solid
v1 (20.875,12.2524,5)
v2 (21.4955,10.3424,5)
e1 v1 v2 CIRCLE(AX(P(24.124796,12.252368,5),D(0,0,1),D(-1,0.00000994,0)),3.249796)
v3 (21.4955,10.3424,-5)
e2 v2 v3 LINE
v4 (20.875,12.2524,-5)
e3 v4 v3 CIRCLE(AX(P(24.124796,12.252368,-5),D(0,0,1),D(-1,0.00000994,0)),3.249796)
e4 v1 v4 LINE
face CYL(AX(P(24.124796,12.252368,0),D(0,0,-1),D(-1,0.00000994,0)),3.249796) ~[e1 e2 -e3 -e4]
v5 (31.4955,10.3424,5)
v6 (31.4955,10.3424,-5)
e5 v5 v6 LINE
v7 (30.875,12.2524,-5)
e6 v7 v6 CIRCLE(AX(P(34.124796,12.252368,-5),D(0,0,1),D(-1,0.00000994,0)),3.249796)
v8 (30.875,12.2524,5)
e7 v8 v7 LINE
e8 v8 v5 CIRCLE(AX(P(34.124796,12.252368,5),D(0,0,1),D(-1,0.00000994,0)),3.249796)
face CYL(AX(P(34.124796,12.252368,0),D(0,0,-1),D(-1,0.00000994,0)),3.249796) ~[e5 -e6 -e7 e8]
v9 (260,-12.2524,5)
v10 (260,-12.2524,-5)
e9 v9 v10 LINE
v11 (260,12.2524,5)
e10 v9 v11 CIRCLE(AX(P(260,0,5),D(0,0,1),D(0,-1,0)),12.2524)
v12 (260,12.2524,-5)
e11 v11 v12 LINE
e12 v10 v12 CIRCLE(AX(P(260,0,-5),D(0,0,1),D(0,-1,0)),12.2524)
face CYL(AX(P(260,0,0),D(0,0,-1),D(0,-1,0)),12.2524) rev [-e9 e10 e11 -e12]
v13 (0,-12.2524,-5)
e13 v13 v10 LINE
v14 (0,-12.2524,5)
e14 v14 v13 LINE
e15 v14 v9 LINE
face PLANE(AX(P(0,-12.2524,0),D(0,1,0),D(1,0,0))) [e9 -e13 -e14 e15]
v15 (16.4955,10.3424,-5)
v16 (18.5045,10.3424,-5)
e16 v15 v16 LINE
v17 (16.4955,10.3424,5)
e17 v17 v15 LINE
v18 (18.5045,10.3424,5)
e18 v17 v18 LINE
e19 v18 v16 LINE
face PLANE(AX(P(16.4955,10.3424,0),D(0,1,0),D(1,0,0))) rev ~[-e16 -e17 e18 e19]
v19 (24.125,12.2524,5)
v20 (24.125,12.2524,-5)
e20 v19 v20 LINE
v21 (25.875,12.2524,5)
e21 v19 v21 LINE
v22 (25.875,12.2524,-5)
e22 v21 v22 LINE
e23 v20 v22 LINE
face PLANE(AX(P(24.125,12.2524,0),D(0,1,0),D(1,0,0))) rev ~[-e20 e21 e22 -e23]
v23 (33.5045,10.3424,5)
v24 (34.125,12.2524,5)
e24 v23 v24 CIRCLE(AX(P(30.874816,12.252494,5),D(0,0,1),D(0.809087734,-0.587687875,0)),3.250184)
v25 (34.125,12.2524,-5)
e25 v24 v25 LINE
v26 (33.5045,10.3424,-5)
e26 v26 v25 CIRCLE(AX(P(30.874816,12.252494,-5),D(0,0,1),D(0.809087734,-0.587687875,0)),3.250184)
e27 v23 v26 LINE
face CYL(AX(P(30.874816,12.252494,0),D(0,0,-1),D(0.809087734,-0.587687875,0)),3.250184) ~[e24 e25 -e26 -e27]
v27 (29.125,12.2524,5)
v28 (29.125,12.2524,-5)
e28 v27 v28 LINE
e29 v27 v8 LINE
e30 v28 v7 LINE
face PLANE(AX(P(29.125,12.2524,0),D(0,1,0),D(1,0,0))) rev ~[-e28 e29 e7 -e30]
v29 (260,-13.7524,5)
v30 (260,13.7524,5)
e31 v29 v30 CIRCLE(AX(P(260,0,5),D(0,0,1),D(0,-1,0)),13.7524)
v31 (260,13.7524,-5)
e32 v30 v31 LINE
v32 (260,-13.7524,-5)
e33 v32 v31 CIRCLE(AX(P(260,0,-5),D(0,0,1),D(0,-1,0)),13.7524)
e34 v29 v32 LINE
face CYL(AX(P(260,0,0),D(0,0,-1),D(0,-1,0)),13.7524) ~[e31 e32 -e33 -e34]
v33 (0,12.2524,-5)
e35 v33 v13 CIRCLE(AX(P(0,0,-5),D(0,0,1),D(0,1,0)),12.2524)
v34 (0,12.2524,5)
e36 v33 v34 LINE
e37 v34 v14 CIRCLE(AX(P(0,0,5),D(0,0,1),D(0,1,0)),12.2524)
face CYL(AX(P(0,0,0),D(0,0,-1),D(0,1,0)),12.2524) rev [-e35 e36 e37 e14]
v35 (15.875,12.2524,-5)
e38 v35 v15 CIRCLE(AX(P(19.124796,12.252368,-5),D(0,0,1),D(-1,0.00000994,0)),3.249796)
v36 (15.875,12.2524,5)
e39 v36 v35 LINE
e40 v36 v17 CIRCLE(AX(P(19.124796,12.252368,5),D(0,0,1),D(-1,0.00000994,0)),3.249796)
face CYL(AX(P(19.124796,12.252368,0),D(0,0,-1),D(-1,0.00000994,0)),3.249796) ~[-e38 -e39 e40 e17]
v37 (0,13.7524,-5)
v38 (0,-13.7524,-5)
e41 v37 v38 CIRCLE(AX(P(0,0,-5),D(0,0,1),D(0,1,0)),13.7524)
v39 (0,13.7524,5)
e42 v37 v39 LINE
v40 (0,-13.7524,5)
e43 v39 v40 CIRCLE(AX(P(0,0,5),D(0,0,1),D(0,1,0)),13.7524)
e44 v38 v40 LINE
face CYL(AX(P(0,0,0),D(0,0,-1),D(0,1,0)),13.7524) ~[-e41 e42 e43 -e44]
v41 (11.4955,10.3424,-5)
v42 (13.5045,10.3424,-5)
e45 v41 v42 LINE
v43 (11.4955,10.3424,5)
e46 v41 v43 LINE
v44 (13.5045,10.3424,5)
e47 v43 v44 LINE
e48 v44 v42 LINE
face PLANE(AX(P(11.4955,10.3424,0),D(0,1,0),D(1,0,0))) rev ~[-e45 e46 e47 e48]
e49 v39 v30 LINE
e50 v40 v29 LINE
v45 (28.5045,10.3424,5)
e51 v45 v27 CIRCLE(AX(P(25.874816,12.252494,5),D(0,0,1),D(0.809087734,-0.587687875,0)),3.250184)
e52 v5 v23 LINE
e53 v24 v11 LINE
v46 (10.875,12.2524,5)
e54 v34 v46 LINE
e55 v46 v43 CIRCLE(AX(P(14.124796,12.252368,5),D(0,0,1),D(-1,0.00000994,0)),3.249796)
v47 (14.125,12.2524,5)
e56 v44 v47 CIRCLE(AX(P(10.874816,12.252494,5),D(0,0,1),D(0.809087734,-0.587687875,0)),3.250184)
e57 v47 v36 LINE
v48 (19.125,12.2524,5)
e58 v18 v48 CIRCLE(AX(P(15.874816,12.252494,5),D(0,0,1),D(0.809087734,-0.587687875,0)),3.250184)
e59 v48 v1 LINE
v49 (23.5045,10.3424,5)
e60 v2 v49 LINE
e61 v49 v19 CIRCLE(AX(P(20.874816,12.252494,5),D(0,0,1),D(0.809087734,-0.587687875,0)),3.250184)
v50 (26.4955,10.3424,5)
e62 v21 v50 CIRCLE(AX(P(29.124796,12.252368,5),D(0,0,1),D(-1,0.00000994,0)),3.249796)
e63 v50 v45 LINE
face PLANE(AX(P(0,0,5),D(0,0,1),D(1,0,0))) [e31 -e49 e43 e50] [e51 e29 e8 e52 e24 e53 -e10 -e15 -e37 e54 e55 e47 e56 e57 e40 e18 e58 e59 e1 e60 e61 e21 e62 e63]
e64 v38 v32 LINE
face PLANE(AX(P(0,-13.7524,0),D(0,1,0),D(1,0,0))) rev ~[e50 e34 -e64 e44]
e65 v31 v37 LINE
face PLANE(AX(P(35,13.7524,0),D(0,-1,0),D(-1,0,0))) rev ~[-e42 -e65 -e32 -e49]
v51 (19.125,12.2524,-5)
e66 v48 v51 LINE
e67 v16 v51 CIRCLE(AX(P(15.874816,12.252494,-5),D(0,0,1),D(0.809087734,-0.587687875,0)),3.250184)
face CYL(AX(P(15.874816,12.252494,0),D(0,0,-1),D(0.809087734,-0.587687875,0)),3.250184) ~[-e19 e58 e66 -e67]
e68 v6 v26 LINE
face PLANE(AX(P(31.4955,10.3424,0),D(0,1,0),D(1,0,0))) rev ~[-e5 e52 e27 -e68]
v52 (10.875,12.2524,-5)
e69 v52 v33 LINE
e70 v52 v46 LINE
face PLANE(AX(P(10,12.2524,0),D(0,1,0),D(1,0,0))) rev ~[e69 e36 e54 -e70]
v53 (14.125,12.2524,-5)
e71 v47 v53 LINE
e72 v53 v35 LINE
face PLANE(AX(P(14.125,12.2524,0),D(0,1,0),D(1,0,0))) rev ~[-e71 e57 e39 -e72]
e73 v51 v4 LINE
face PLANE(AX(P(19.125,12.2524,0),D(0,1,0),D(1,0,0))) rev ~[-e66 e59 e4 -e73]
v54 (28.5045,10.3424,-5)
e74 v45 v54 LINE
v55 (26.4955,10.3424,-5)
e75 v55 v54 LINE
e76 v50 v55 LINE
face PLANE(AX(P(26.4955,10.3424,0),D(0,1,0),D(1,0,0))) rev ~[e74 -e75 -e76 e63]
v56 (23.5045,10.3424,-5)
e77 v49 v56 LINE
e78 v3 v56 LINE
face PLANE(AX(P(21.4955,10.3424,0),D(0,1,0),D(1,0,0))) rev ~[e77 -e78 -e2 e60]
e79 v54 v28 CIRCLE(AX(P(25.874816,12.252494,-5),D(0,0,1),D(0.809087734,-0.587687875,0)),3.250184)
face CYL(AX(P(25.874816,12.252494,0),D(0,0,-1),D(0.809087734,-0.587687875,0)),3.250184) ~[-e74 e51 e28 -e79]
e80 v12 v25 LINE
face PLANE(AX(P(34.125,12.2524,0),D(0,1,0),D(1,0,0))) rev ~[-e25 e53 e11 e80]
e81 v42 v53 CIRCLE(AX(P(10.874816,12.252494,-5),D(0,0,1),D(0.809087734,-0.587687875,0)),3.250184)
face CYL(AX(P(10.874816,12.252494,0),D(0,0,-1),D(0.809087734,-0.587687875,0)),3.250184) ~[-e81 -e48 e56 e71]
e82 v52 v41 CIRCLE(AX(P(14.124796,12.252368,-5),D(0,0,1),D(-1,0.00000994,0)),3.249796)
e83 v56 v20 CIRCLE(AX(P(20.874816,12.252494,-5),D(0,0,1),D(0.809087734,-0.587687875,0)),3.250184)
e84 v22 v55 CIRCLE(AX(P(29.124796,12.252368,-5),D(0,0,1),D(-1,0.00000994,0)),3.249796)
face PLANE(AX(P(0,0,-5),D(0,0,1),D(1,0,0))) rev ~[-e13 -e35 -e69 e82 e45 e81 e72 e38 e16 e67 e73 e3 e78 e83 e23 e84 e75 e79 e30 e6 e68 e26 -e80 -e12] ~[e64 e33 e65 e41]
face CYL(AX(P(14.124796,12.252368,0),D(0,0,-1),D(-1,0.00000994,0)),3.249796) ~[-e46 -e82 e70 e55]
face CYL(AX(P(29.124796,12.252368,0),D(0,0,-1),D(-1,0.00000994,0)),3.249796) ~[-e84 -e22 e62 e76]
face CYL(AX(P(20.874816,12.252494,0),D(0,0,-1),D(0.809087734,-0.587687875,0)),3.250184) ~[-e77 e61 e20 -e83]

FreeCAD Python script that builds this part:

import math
import FreeCAD as App
import Part
import Sketcher
from FreeCAD import Vector
Q = App.Units.Quantity

doc = App.newDocument("Part")
body = doc.addObject("PartDesign::Body", "Body")

sketch1 = body.newObject("Sketcher::SketchObject", "Sketch")
sketch1.AttachmentSupport = (doc.getObject("XY_Plane"), [""])
sketch1.MapMode = "FlatFace"
sketch1.addGeometry([
    Part.LineSegment(Vector(10, 13.7524, 0), Vector(10, 12.2524, 0)),
    Part.LineSegment(Vector(10, 12.2524, 0), Vector(10.875, 12.2524, 0)),
    Part.ArcOfCircle(Part.Circle(Vector(14.125, 12.2524, 0), Vector(0, 0, 1), 3.25), math.radians(180), math.radians(215.993673)),
    Part.LineSegment(Vector(11.4955, 10.3424, 0), Vector(13.5045, 10.3424, 0)),
    Part.ArcOfCircle(Part.Circle(Vector(10.875, 12.2524, 0), Vector(0, 0, 1), 3.24998), math.radians(-35.993673), math.radians(0)),
    Part.LineSegment(Vector(14.125, 12.2524, 0), Vector(15.875, 12.2524, 0)),
    Part.ArcOfCircle(Part.Circle(Vector(19.125, 12.2524, 0), Vector(0, 0, 1), 3.25), math.radians(180), math.radians(215.993673)),
    Part.LineSegment(Vector(16.4955, 10.3424, 0), Vector(18.5045, 10.3424, 0)),
    Part.ArcOfCircle(Part.Circle(Vector(15.875, 12.2524, 0), Vector(0, 0, 1), 3.24998), math.radians(-35.993673), math.radians(0)),
    Part.LineSegment(Vector(19.125, 12.2524, 0), Vector(20.875, 12.2524, 0)),
    Part.ArcOfCircle(Part.Circle(Vector(24.125, 12.2524, 0), Vector(0, 0, 1), 3.25), math.radians(180), math.radians(215.993673)),
    Part.LineSegment(Vector(21.4955, 10.3424, 0), Vector(23.5045, 10.3424, 0)),
    Part.ArcOfCircle(Part.Circle(Vector(20.875, 12.2524, 0), Vector(0, 0, 1), 3.24998), math.radians(-35.993673), math.radians(0)),
    Part.LineSegment(Vector(24.125, 12.2524, 0), Vector(25.875, 12.2524, 0)),
    Part.ArcOfCircle(Part.Circle(Vector(29.125, 12.2524, 0), Vector(0, 0, 1), 3.25), math.radians(180), math.radians(215.993673)),
    Part.LineSegment(Vector(26.4955, 10.3424, 0), Vector(28.5045, 10.3424, 0)),
    Part.ArcOfCircle(Part.Circle(Vector(25.875, 12.2524, 0), Vector(0, 0, 1), 3.24998), math.radians(-35.993673), math.radians(0)),
    Part.LineSegment(Vector(29.125, 12.2524, 0), Vector(30.875, 12.2524, 0)),
    Part.ArcOfCircle(Part.Circle(Vector(34.125, 12.2524, 0), Vector(0, 0, 1), 3.25), math.radians(180), math.radians(215.993673)),
    Part.LineSegment(Vector(31.4955, 10.3424, 0), Vector(33.5045, 10.3424, 0)),
    Part.ArcOfCircle(Part.Circle(Vector(30.875, 12.2524, 0), Vector(0, 0, 1), 3.24998), math.radians(-35.993673), math.radians(0)),
    Part.LineSegment(Vector(34.125, 12.2524, 0), Vector(35, 12.2524, 0)),
    Part.LineSegment(Vector(35, 12.2524, 0), Vector(35, 13.7524, 0)),
    Part.LineSegment(Vector(35, 13.7524, 0), Vector(10, 13.7524, 0)),
], False)
sketch1.addConstraint([
    Sketcher.Constraint("Coincident", 0, 2, 1, 1),
    Sketcher.Constraint("Coincident", 1, 2, 2, 1),
    Sketcher.Constraint("Coincident", 2, 2, 3, 1),
    Sketcher.Constraint("Coincident", 3, 2, 4, 1),
    Sketcher.Constraint("Coincident", 4, 2, 5, 1),
    Sketcher.Constraint("Coincident", 5, 2, 6, 1),
    Sketcher.Constraint("Coincident", 6, 2, 7, 1),
    Sketcher.Constraint("Coincident", 7, 2, 8, 1),
    Sketcher.Constraint("Coincident", 8, 2, 9, 1),
    Sketcher.Constraint("Coincident", 9, 2, 10, 1),
    Sketcher.Constraint("Coincident", 10, 2, 11, 1),
    Sketcher.Constraint("Coincident", 11, 2, 12, 1),
    Sketcher.Constraint("Coincident", 12, 2, 13, 1),
    Sketcher.Constraint("Coincident", 13, 2, 14, 1),
    Sketcher.Constraint("Coincident", 14, 2, 15, 1),
    Sketcher.Constraint("Coincident", 15, 2, 16, 1),
    Sketcher.Constraint("Coincident", 16, 2, 17, 1),
    Sketcher.Constraint("Coincident", 17, 2, 18, 1),
    Sketcher.Constraint("Coincident", 18, 2, 19, 1),
    Sketcher.Constraint("Coincident", 19, 2, 20, 1),
    Sketcher.Constraint("Coincident", 20, 2, 21, 1),
    Sketcher.Constraint("Coincident", 21, 2, 22, 1),
    Sketcher.Constraint("Coincident", 22, 2, 23, 1),
    Sketcher.Constraint("Coincident", 23, 2, 0, 1),
    Sketcher.Constraint("Vertical", 0),
    Sketcher.Constraint("Horizontal", 1),
    Sketcher.Constraint("Horizontal", 3),
    Sketcher.Constraint("Horizontal", 5),
    Sketcher.Constraint("Horizontal", 7),
    Sketcher.Constraint("Horizontal", 9),
    Sketcher.Constraint("Horizontal", 11),
    Sketcher.Constraint("Horizontal", 13),
    Sketcher.Constraint("Horizontal", 15),
    Sketcher.Constraint("Horizontal", 17),
    Sketcher.Constraint("Horizontal", 19),
    Sketcher.Constraint("Horizontal", 21),
    Sketcher.Constraint("Vertical", 22),
    Sketcher.Constraint("Horizontal", 23),
    Sketcher.Constraint("Coincident", 1, 2, 4, 3),
    Sketcher.Constraint("Coincident", 4, 2, 2, 3),
    Sketcher.Constraint("Coincident", 5, 2, 8, 3),
    Sketcher.Constraint("Coincident", 8, 2, 6, 3),
    Sketcher.Constraint("Coincident", 9, 2, 12, 3),
    Sketcher.Constraint("Coincident", 12, 2, 10, 3),
    Sketcher.Constraint("Coincident", 13, 2, 16, 3),
    Sketcher.Constraint("Coincident", 16, 2, 14, 3),
    Sketcher.Constraint("Coincident", 17, 2, 20, 3),
    Sketcher.Constraint("Coincident", 20, 2, 18, 3),
    Sketcher.Constraint("Equal", 4, 6),
    Sketcher.Constraint("Equal", 8, 10),
    Sketcher.Constraint("Equal", 12, 14),
    Sketcher.Constraint("Equal", 16, 18),
    Sketcher.Constraint("Horizontal", 2, 3, 4, 3),
    Sketcher.Constraint("Horizontal", 4, 3, 6, 3),
    Sketcher.Constraint("Horizontal", 8, 3, 10, 3),
    Sketcher.Constraint("Horizontal", 12, 3, 14, 3),
    Sketcher.Constraint("Horizontal", 16, 3, 18, 3),
    Sketcher.Constraint("Horizontal", 3, 2, 6, 2),
    Sketcher.Constraint("Horizontal", 7, 2, 10, 2),
    Sketcher.Constraint("Horizontal", 11, 2, 14, 2),
    Sketcher.Constraint("Horizontal", 15, 2, 18, 2),
    Sketcher.Constraint("Equal", 5, 9),
    Sketcher.Constraint("Equal", 9, 13),
    Sketcher.Constraint("Equal", 13, 17),
    Sketcher.Constraint("Equal", 1, 21),
    Sketcher.Constraint("DistanceX", 23, 2, 23, 1, Q("25 mm")),
    Sketcher.Constraint("Radius", 2, Q("3.25 mm")),
    Sketcher.Constraint("DistanceY", 0, 2, 0, 1, Q("1.5 mm")),
    Sketcher.Constraint("DistanceX", -1, 1, 0, 2, Q("10 mm")),
    Sketcher.Constraint("DistanceX", 2, 3, 6, 3, Q("5 mm")),
    Sketcher.Constraint("DistanceX", 3, 1, 3, 2, Q("2.009 mm")),
    Sketcher.Constraint("DistanceY", -1, 1, 2, 3, Q("12.2524 mm")),
])
pad1 = body.newObject("PartDesign::Pad", "Pad")
pad1.Profile = sketch1
pad1.Length = 10
pad1.Midplane = True

sketch2 = body.newObject("Sketcher::SketchObject", "Sketch001")
sketch2.AttachmentSupport = (doc.getObject("XY_Plane"), [""])
sketch2.MapMode = "FlatFace"
sketch2.addGeometry([
    Part.LineSegment(Vector(260, 13.7524, 0), Vector(0, 13.7524, 0)),
    Part.ArcOfCircle(Part.Circle(Vector(0, 0, 0), Vector(0, 0, 1), 13.7524), math.radians(90), math.radians(270)),
    Part.LineSegment(Vector(0, -13.7524, 0), Vector(260, -13.7524, 0)),
    Part.ArcOfCircle(Part.Circle(Vector(260, 0, 0), Vector(0, 0, 1), 13.7524), math.radians(-90), math.radians(90)),
    Part.ArcOfCircle(Part.Circle(Vector(0, 0, 0), Vector(0, 0, 1), 12.2524), math.radians(90), math.radians(270)),
    Part.LineSegment(Vector(0, 12.2524, 0), Vector(260, 12.2524, 0)),
    Part.ArcOfCircle(Part.Circle(Vector(260, 0, 0), Vector(0, 0, 1), 12.2524), math.radians(-90), math.radians(90)),
    Part.LineSegment(Vector(260, -12.2524, 0), Vector(0, -12.2524, 0)),
], False)
sketch2.addConstraint([
    Sketcher.Constraint("Tangent", 0, 2, 1, 1),
    Sketcher.Constraint("Tangent", 1, 2, 2, 1),
    Sketcher.Constraint("Tangent", 2, 2, 3, 1),
    Sketcher.Constraint("Tangent", 3, 2, 0, 1),
    Sketcher.Constraint("Tangent", 4, 1, 5, 1),
    Sketcher.Constraint("Tangent", 5, 2, 6, 2),
    Sketcher.Constraint("Tangent", 6, 1, 7, 1),
    Sketcher.Constraint("Tangent", 7, 2, 4, 2),
    Sketcher.Constraint("Horizontal", 0),
    Sketcher.Constraint("Horizontal", 2),
    Sketcher.Constraint("Horizontal", 5),
    Sketcher.Constraint("Horizontal", 7),
    Sketcher.Constraint("Coincident", 1, 3, -1, 1),
    Sketcher.Constraint("Coincident", 4, 3, -1, 1),
    Sketcher.Constraint("Vertical", 6, 3, 2, 2),
    Sketcher.Constraint("DistanceX", 0, 2, 0, 1, Q("260 mm")),
    Sketcher.Constraint("Radius", 1, Q("13.7524 mm")),
    Sketcher.Constraint("Radius", 4, Q("12.2524 mm")),
])
pad2 = body.newObject("PartDesign::Pad", "Pad001")
pad2.Profile = sketch2
pad2.Length = 10
pad2.Midplane = True

doc.recompute()
